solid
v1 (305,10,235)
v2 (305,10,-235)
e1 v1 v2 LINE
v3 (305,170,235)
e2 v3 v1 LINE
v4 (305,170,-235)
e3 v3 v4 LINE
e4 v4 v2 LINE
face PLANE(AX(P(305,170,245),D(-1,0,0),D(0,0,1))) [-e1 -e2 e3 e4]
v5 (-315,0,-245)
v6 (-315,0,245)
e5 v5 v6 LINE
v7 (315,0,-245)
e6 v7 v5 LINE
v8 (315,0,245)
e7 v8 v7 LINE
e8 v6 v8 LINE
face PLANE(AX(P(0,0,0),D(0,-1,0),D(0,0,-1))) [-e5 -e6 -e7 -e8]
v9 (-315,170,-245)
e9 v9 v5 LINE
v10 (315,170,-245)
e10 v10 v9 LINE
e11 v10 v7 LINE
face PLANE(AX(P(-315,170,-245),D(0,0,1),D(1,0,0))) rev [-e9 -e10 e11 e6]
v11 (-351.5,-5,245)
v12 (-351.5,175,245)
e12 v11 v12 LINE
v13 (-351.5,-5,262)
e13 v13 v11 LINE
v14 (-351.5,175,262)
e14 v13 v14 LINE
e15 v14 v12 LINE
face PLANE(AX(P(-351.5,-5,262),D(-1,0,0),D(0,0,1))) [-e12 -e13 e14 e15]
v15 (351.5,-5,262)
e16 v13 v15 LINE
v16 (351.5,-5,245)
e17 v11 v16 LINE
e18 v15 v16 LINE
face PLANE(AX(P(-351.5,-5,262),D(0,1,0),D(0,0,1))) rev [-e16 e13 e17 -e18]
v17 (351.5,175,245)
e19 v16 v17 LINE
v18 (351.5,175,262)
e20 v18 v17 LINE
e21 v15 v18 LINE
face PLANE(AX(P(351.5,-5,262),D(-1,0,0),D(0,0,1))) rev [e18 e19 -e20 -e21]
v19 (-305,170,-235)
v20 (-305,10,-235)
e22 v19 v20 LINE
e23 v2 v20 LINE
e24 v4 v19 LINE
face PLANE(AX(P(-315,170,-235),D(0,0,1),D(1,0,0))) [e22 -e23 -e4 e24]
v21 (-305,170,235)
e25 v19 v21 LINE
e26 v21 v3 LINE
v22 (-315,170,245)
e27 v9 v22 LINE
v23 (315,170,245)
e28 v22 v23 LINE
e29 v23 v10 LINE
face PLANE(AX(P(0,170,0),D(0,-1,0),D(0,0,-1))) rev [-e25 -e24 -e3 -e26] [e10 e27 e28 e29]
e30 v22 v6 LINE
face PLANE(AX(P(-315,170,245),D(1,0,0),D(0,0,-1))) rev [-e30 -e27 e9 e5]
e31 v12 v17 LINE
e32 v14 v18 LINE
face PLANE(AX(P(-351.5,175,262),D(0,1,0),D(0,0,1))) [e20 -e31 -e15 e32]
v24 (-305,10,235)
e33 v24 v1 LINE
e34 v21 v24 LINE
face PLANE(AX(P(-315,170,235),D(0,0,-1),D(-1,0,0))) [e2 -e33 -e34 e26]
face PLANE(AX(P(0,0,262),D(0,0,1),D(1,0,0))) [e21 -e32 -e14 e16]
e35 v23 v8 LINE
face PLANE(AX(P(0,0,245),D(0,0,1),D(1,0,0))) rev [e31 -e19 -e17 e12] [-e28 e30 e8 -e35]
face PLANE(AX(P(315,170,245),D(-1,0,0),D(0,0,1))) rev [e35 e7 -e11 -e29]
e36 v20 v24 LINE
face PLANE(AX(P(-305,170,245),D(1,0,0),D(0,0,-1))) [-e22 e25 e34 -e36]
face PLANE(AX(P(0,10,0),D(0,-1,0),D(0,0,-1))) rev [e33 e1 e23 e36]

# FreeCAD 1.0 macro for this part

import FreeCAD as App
import Part
import Sketcher
Q = App.Units.Quantity


def faces_at(feature, points):
    """Names of the faces that lie closest to the given points."""
    faces = feature.Shape.Faces
    near = lambda p: min(range(len(faces)), key=lambda i: faces[i].distToShape(Part.Vertex(*p))[0])
    return sorted({f"Face{near(p) + 1}" for p in points})

doc = App.newDocument("Part")
params = doc.addObject("Spreadsheet::Sheet", "Params")
for row, (alias, value) in enumerate([
    ("sketch1_width", "630 mm"),
    ("sketch1_height", "490 mm"),
    ("pad1_length", "170 mm"),
    ("thickness_wall", "10 mm"),
    ("sketch2_width", "703 mm"),
    ("sketch2_height", "180 mm"),
    ("pad2_length", "17 mm"),
], start=1):
    params.set(f"A{row}", alias)
    params.set(f"B{row}", "=" + value)
    params.setAlias(f"B{row}", alias)

body = doc.addObject("PartDesign::Body", "Body")

sketch1 = body.newObject("Sketcher::SketchObject", "Sketch")
sketch1.AttachmentSupport = (doc.getObject("XZ_Plane"), [""])
sketch1.MapMode = "FlatFace"
sketch1.addGeometry([
    Part.LineSegment(App.Vector(-315, -245, 0), App.Vector(-315, 245, 0)),
    Part.LineSegment(App.Vector(-315, 245, 0), App.Vector(315, 245, 0)),
    Part.LineSegment(App.Vector(315, 245, 0), App.Vector(315, -245, 0)),
    Part.LineSegment(App.Vector(315, -245, 0), App.Vector(-315, -245, 0)),
], False)
sketch1.addConstraint([
    Sketcher.Constraint("Coincident", 0, 2, 1, 1),
    Sketcher.Constraint("Coincident", 1, 2, 2, 1),
    Sketcher.Constraint("Coincident", 2, 2, 3, 1),
    Sketcher.Constraint("Coincident", 3, 2, 0, 1),
    Sketcher.Constraint("Vertical", 0),
    Sketcher.Constraint("Horizontal", 1),
    Sketcher.Constraint("Vertical", 2),
    Sketcher.Constraint("Horizontal", 3),
    Sketcher.Constraint("Symmetric", 0, 2, 2, 2, -1, 1),
    Sketcher.Constraint("DistanceX", 1, 1, 1, 2, Q("630 mm")),
    Sketcher.Constraint("DistanceY", 0, 1, 0, 2, Q("490 mm")),
])
sketch1.setExpression("Constraints[9]", "Params.sketch1_width")
sketch1.setExpression("Constraints[10]", "Params.sketch1_height")
pad1 = body.newObject("PartDesign::Pad", "Pad")
pad1.Profile = sketch1
pad1.setExpression("Length", "Params.pad1_length")
pad1.Reversed = True
doc.recompute()

thickness = body.newObject("PartDesign::Thickness", "Thickness")
thickness.Base = (pad1, faces_at(pad1, [(0, 170, 0)]))
thickness.setExpression("Value", "Params.thickness_wall")
thickness.Reversed = True
thickness.Join = "Intersection"

sketch2 = body.newObject("Sketcher::SketchObject", "Sketch001")
sketch2.AttachmentSupport = (doc.getObject("XY_Plane"), [""])
sketch2.MapMode = "FlatFace"
sketch2.AttachmentOffset = App.Placement(App.Vector(0, 0, 245), App.Rotation())
sketch2.addGeometry([
    Part.LineSegment(App.Vector(-352, 175, 0), App.Vector(-352, -5, 0)),
    Part.LineSegment(App.Vector(-352, -5, 0), App.Vector(352, -5, 0)),
    Part.LineSegment(App.Vector(352, -5, 0), App.Vector(352, 175, 0)),
    Part.LineSegment(App.Vector(352, 175, 0), App.Vector(-352, 175, 0)),
], False)
sketch2.addConstraint([
    Sketcher.Constraint("Coincident", 0, 2, 1, 1),
    Sketcher.Constraint("Coincident", 1, 2, 2, 1),
    Sketcher.Constraint("Coincident", 2, 2, 3, 1),
    Sketcher.Constraint("Coincident", 3, 2, 0, 1),
    Sketcher.Constraint("Vertical", 0),
    Sketcher.Constraint("Horizontal", 1),
    Sketcher.Constraint("Vertical", 2),
    Sketcher.Constraint("Horizontal", 3),
    Sketcher.Constraint("DistanceX", 1, 1, 1, 2, Q("703 mm")),
    Sketcher.Constraint("DistanceY", 0, 2, 0, 1, Q("180 mm")),
    Sketcher.Constraint("DistanceY", 0, 2, -1, 1, Q("5 mm")),
    Sketcher.Constraint("DistanceX", 0, 2, -1, 1, Q("351.5 mm")),
])
sketch2.setExpression("Constraints[8]", "Params.sketch2_width")
sketch2.setExpression("Constraints[9]", "Params.sketch2_height")
pad2 = body.newObject("PartDesign::Pad", "Pad001")
pad2.Profile = sketch2
pad2.setExpression("Length", "Params.pad2_length")

doc.recompute()
